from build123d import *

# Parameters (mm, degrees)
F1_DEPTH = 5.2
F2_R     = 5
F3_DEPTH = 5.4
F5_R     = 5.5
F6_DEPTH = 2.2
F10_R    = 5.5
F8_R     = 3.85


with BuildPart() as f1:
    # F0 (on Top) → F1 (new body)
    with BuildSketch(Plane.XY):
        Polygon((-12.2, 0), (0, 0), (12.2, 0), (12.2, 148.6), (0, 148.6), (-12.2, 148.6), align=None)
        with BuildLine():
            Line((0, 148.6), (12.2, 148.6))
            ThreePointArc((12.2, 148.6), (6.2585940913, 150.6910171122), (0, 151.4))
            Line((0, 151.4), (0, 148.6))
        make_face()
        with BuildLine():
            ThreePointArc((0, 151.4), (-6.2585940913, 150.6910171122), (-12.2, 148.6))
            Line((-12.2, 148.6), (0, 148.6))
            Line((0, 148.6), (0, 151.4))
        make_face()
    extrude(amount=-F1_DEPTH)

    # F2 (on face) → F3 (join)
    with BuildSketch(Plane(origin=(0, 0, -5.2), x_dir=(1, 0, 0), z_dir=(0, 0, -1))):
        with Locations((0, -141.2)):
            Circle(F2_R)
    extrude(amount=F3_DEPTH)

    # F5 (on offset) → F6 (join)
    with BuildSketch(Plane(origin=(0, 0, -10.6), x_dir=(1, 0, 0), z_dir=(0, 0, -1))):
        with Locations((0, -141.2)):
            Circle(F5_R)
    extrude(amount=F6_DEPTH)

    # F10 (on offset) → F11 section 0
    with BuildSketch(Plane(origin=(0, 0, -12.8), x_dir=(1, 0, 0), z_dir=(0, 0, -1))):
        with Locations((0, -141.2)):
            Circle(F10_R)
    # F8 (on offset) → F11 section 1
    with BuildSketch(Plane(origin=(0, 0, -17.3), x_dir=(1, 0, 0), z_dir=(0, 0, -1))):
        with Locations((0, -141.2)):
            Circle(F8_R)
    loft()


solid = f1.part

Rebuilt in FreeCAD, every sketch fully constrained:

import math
import FreeCAD as App
import Part
import Sketcher

V = App.Vector
Q = App.Units.Quantity

doc = App.newDocument("Part")
body = doc.addObject("PartDesign::Body", "Body")

# Sketch on XY plane
sketch1 = body.newObject("Sketcher::SketchObject", "Sketch")
sketch1.AttachmentSupport = (doc.getObject("XY_Plane"), [""])
sketch1.MapMode = "FlatFace"
sketch1.addGeometry(Part.LineSegment(V(-12, 0, 0), V(12, 0, 0)), False)
sketch1.addGeometry(Part.LineSegment(V(12, 0, 0), V(12, 149, 0)), False)
sketch1.addGeometry(Part.ArcOfCircle(Part.Circle(V(0, 123, 0), V(0, 0, 1), 28), math.radians(64), math.radians(90)), False)
sketch1.addGeometry(Part.ArcOfCircle(Part.Circle(V(0, 123, 0), V(0, 0, 1), 28), math.radians(90), math.radians(116)), False)
sketch1.addGeometry(Part.LineSegment(V(-12, 149, 0), V(-12, 0, 0)), False)
sketch1.addConstraint(Sketcher.Constraint("Coincident", 0, 2, 1, 1))
sketch1.addConstraint(Sketcher.Constraint("Coincident", 1, 2, 2, 1))
sketch1.addConstraint(Sketcher.Constraint("Tangent", 2, 2, 3, 1))
sketch1.addConstraint(Sketcher.Constraint("Coincident", 3, 2, 4, 1))
sketch1.addConstraint(Sketcher.Constraint("Coincident", 4, 2, 0, 1))
sketch1.addConstraint(Sketcher.Constraint("Horizontal", 0))
sketch1.addConstraint(Sketcher.Constraint("Vertical", 1))
sketch1.addConstraint(Sketcher.Constraint("Vertical", 4))
sketch1.addConstraint(Sketcher.Constraint("Equal", 2, 3))
sketch1.addConstraint(Sketcher.Constraint("Symmetric", 0, 2, 4, 2, -1, 1))
sketch1.addConstraint(Sketcher.Constraint("PointOnObject", 2, 3, -2))
sketch1.addConstraint(Sketcher.Constraint("PointOnObject", 2, 2, -2))
sketch1.addConstraint(Sketcher.Constraint("DistanceX", 0, 1, 0, 2, Q("24.4 mm")))
sketch1.addConstraint(Sketcher.Constraint("DistanceY", 1, 1, 1, 2, Q("148.6 mm")))
sketch1.addConstraint(Sketcher.Constraint("DistanceY", -1, 1, 2, 2, Q("151.4 mm")))
pad1 = body.newObject("PartDesign::Pad", "Pad")
pad1.Profile = sketch1
pad1.Length = 5.2
pad1.Reversed = True

# Sketch on XY plane
sketch2 = body.newObject("Sketcher::SketchObject", "Sketch001")
sketch2.AttachmentSupport = (doc.getObject("XY_Plane"), [""])
sketch2.MapMode = "FlatFace"
sketch2.AttachmentOffset = App.Placement(V(0, 0, -5.2), App.Rotation())
sketch2.addGeometry(Part.Circle(V(0, 141, 0), V(0, 0, 1), 5), False)
sketch2.addConstraint(Sketcher.Constraint("PointOnObject", 0, 3, -2))
sketch2.addConstraint(Sketcher.Constraint("Diameter", 0, Q("10 mm")))
sketch2.addConstraint(Sketcher.Constraint("DistanceY", -1, 1, 0, 3, Q("141.2 mm")))
pad2 = body.newObject("PartDesign::Pad", "Pad001")
pad2.Profile = sketch2
pad2.Length = 5.4
pad2.Reversed = True

# Sketch on XY plane
sketch3 = body.newObject("Sketcher::SketchObject", "Sketch002")
sketch3.AttachmentSupport = (doc.getObject("XY_Plane"), [""])
sketch3.MapMode = "FlatFace"
sketch3.AttachmentOffset = App.Placement(V(0, 0, -10.6), App.Rotation())
sketch3.addGeometry(Part.Circle(V(0, 141, 0), V(0, 0, 1), 6), False)
sketch3.addConstraint(Sketcher.Constraint("PointOnObject", 0, 3, -2))
sketch3.addConstraint(Sketcher.Constraint("Diameter", 0, Q("11 mm")))
sketch3.addConstraint(Sketcher.Constraint("DistanceY", -1, 1, 0, 3, Q("141.2 mm")))
pad3 = body.newObject("PartDesign::Pad", "Pad002")
pad3.Profile = sketch3
pad3.Length = 2.2
pad3.Reversed = True

# Sketch on XY plane
sketch4 = body.newObject("Sketcher::SketchObject", "Sketch003")
sketch4.AttachmentSupport = (doc.getObject("XY_Plane"), [""])
sketch4.MapMode = "FlatFace"
sketch4.AttachmentOffset = App.Placement(V(0, 0, -12.8), App.Rotation())
sketch4.addGeometry(Part.Circle(V(0, 141, 0), V(0, 0, 1), 6), False)
sketch4.addConstraint(Sketcher.Constraint("PointOnObject", 0, 3, -2))
sketch4.addConstraint(Sketcher.Constraint("Diameter", 0, Q("11 mm")))
sketch4.addConstraint(Sketcher.Constraint("DistanceY", -1, 1, 0, 3, Q("141.2 mm")))

# Sketch on XY plane
sketch5 = body.newObject("Sketcher::SketchObject", "Sketch004")
sketch5.AttachmentSupport = (doc.getObject("XY_Plane"), [""])
sketch5.MapMode = "FlatFace"
sketch5.AttachmentOffset = App.Placement(V(0, 0, -17.3), App.Rotation())
sketch5.addGeometry(Part.Circle(V(0, 141.2, 0), V(0, 0, 1), 3.9), False)
sketch5.addConstraint(Sketcher.Constraint("PointOnObject", 0, 3, -2))
sketch5.addConstraint(Sketcher.Constraint("Diameter", 0, Q("7.7 mm")))
sketch5.addConstraint(Sketcher.Constraint("DistanceY", -1, 1, 0, 3, Q("141.2 mm")))

additiveloft = body.newObject("PartDesign::AdditiveLoft", "AdditiveLoft")
additiveloft.Profile = sketch4
additiveloft.Sections = [sketch5]

doc.recompute()
